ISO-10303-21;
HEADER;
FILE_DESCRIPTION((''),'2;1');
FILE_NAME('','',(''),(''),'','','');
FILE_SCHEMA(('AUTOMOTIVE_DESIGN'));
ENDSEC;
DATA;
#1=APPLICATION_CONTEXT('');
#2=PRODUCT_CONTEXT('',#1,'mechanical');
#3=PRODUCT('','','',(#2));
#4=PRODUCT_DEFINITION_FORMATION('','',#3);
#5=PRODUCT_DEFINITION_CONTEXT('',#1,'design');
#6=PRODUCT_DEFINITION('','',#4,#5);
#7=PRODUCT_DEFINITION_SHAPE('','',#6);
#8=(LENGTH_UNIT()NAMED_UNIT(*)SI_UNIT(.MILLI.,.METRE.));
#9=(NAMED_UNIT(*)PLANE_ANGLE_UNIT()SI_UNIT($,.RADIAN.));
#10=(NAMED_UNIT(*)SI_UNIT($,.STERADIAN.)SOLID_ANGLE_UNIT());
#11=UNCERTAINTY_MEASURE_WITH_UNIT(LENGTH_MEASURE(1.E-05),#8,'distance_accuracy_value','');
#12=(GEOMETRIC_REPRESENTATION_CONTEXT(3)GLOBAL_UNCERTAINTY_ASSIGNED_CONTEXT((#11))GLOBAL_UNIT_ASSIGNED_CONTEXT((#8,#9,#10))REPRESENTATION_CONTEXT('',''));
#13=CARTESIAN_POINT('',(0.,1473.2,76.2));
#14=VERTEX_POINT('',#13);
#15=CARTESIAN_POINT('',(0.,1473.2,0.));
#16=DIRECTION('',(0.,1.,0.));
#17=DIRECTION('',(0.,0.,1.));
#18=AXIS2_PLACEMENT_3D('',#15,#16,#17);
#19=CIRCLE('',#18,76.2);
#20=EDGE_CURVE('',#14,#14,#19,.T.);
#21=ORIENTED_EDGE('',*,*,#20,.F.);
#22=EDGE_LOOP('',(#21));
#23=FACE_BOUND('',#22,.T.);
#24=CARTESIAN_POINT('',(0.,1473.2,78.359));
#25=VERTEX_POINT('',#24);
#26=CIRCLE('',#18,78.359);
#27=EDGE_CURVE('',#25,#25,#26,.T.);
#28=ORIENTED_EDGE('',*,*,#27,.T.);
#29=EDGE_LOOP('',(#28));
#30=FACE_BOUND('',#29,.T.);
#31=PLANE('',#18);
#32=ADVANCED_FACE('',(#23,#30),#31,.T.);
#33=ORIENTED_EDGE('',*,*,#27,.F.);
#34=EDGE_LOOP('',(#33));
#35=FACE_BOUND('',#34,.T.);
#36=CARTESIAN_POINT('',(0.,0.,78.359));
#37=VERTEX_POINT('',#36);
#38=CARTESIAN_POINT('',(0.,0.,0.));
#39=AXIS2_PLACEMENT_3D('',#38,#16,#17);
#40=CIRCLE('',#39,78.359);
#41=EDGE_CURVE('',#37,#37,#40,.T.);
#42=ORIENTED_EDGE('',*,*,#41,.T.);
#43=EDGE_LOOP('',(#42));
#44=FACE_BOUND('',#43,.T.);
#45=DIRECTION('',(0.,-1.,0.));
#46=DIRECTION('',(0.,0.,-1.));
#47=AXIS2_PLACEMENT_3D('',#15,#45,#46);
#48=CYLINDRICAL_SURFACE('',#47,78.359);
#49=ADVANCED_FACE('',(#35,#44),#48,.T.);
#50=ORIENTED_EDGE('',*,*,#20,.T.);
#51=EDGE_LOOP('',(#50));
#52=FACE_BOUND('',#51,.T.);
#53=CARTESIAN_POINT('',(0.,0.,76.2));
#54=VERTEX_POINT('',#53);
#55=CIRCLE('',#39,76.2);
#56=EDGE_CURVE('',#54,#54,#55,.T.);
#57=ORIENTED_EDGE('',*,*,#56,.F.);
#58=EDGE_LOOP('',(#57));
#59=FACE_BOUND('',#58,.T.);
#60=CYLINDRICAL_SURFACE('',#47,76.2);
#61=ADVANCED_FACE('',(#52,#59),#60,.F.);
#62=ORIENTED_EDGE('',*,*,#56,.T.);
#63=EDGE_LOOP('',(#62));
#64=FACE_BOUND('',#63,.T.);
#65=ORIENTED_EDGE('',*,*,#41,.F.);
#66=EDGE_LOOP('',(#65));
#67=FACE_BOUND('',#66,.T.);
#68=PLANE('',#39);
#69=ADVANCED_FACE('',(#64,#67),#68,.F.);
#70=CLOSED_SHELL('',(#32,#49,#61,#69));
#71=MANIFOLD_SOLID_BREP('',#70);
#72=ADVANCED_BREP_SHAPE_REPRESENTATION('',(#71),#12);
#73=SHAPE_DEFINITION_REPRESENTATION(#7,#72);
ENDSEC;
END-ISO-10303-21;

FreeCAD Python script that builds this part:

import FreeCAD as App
import Part
import Sketcher
from FreeCAD import Vector
Q = App.Units.Quantity

doc = App.newDocument("Part")
body = doc.addObject("PartDesign::Body", "Body")

# Sketch on XZ plane
sketch1 = body.newObject("Sketcher::SketchObject", "Sketch")
sketch1.AttachmentSupport = (doc.getObject("XZ_Plane"), [""])
sketch1.MapMode = "FlatFace"
sketch1.addGeometry(Part.Circle(Vector(0, 0, 0), Vector(0, 0, 1), 78.359), False)
sketch1.addGeometry(Part.Circle(Vector(0, 0, 0), Vector(0, 0, 1), 76.2), False)
sketch1.addConstraint(Sketcher.Constraint("Coincident", 0, 3, -1, 1))
sketch1.addConstraint(Sketcher.Constraint("Coincident", 1, 3, -1, 1))
sketch1.addConstraint(Sketcher.Constraint("Diameter", 1, Q("6 in")))
sketch1.addConstraint(Sketcher.Constraint("Diameter", 0, Q("6.17 in")))
pad1 = body.newObject("PartDesign::Pad", "Pad")
pad1.Profile = sketch1
pad1.Length = Q("58 in")
pad1.Reversed = True

doc.recompute()
